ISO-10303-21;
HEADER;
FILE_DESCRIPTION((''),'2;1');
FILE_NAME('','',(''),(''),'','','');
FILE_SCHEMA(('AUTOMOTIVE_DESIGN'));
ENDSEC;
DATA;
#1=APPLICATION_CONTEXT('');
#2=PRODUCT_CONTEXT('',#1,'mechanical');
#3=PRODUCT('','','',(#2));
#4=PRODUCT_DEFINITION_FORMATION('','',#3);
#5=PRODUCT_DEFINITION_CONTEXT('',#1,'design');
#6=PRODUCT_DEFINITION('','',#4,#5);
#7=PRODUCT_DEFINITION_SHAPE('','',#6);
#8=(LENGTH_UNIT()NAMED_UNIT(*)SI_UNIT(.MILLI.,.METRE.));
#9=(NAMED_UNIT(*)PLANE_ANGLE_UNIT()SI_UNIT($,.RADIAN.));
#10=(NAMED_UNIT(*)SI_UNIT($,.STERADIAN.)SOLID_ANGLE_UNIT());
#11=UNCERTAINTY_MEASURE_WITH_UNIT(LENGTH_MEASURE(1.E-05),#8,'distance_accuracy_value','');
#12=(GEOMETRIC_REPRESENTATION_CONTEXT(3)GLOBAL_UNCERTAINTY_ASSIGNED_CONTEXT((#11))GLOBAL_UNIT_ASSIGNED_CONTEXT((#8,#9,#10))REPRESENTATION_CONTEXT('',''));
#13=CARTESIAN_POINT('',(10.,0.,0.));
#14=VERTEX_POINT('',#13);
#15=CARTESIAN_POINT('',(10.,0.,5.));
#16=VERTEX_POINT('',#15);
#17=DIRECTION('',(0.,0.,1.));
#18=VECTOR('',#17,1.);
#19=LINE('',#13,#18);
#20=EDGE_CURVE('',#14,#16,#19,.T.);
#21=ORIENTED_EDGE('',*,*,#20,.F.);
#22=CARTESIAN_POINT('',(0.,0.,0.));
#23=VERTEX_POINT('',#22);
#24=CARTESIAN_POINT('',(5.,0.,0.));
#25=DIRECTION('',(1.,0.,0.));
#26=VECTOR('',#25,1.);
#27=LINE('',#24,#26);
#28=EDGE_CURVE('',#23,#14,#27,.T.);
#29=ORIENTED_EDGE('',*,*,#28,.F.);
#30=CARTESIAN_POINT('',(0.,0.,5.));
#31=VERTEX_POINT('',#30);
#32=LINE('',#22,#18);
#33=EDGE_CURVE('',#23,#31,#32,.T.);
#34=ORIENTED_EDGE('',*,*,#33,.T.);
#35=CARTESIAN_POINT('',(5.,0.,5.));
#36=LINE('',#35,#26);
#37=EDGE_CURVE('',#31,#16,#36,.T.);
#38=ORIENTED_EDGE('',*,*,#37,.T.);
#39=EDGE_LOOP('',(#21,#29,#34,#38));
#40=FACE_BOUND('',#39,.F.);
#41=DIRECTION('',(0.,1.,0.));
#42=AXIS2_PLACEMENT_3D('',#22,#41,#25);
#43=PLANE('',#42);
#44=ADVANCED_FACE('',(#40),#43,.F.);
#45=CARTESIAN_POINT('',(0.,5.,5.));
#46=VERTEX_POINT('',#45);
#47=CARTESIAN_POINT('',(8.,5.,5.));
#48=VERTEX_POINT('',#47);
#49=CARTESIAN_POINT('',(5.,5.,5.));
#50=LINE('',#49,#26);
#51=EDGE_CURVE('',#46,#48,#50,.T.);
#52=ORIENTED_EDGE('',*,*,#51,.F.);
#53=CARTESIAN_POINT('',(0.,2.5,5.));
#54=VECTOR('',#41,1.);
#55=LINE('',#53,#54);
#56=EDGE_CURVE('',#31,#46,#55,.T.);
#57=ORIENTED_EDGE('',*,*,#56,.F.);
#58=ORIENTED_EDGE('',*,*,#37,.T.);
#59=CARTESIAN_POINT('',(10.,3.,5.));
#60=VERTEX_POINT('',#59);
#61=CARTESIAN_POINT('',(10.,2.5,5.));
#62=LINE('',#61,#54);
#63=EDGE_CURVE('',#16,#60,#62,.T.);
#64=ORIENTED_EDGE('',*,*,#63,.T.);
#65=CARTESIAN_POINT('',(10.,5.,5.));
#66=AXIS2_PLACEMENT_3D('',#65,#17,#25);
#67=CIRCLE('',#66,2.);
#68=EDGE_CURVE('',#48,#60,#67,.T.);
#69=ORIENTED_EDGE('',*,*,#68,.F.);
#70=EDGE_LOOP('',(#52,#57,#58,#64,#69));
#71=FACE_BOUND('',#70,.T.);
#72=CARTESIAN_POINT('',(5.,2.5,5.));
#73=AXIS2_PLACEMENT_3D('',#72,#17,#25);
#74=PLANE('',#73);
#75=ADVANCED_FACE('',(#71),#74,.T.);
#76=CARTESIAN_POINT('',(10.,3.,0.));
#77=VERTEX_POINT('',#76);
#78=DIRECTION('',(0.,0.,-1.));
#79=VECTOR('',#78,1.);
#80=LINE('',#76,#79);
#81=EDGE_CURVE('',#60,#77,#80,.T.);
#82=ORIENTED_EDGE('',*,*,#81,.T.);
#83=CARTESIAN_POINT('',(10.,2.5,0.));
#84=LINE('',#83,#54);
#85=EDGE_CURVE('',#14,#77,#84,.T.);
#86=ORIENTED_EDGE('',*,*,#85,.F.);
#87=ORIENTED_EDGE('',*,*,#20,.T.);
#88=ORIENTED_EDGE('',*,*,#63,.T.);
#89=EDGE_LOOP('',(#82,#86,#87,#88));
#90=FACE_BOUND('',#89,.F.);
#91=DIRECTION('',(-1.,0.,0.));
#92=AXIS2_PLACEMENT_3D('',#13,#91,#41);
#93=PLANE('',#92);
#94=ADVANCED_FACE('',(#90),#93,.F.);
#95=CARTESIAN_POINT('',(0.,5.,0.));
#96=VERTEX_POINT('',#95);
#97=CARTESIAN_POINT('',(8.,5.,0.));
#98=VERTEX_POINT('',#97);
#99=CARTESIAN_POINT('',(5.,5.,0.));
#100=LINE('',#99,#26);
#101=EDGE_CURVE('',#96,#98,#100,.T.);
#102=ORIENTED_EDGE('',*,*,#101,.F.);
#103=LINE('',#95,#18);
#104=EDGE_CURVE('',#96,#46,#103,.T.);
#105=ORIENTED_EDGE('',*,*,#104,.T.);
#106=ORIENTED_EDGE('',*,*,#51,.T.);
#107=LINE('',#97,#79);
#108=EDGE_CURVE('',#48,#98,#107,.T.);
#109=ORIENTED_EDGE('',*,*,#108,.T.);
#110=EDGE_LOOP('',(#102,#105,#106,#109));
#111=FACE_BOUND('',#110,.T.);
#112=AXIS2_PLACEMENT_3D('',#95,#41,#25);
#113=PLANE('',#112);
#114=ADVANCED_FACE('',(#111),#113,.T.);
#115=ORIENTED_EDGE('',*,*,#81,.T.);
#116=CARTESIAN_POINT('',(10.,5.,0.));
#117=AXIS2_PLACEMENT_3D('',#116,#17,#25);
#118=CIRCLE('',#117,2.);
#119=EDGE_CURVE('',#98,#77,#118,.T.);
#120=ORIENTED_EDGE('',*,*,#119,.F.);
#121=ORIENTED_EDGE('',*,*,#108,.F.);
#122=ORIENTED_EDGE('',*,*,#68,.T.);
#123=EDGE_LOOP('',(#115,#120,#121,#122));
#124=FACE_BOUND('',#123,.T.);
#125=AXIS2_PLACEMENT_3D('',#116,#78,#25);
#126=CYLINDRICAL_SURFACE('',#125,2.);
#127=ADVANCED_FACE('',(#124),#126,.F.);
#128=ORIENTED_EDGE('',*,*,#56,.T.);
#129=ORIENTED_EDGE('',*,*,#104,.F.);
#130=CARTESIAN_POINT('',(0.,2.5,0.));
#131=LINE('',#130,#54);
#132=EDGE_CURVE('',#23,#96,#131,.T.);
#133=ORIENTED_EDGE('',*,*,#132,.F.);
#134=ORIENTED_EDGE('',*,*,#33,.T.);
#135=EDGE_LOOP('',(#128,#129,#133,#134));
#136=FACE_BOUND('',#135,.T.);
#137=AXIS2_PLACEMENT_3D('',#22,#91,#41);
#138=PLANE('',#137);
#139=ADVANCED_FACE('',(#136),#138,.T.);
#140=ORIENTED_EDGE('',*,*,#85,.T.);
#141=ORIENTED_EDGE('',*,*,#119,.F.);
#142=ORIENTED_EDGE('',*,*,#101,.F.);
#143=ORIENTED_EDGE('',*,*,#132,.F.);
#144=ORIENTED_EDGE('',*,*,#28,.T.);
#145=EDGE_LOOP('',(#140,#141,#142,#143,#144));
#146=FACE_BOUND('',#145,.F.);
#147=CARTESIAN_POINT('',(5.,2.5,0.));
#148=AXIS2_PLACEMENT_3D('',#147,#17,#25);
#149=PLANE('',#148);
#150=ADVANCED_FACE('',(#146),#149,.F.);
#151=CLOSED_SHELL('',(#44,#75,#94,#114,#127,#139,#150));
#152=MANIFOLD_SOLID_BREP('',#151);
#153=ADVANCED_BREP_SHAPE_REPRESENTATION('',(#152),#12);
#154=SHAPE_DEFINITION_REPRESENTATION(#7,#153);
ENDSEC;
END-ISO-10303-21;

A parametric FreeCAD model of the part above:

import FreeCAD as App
import Part
import Sketcher

doc = App.newDocument("Part")
body = doc.addObject("PartDesign::Body", "Body")

# Sketch on XY plane
sketch1 = body.newObject("Sketcher::SketchObject", "Sketch")
sketch1.AttachmentSupport = (doc.getObject("XY_Plane"), [""])
sketch1.MapMode = "FlatFace"
sketch1.addGeometry(Part.Circle(App.Vector(10, 5, 0), App.Vector(0, 0, 1), 2), False)
sketch1.addConstraint(Sketcher.Constraint("Diameter", 0, 4.0))
sketch1.addConstraint(Sketcher.Constraint("DistanceX", -1, 1, 0, 3, 10.0))
sketch1.addConstraint(Sketcher.Constraint("DistanceY", -1, 1, 0, 3, 5.0))
pad1 = body.newObject("PartDesign::Pad", "Pad")
pad1.Profile = sketch1
pad1.Length = 5
body2 = doc.addObject("PartDesign::Body", "Body001")

# Sketch on XY plane
sketch2 = body2.newObject("Sketcher::SketchObject", "Sketch001")
sketch2.AttachmentSupport = (doc.getObject("XY_Plane001"), [""])
sketch2.MapMode = "FlatFace"
sketch2.addGeometry(Part.LineSegment(App.Vector(0, 5, 0), App.Vector(0, 0, 0)), False)
sketch2.addGeometry(Part.LineSegment(App.Vector(0, 0, 0), App.Vector(10, 0, 0)), False)
sketch2.addGeometry(Part.LineSegment(App.Vector(10, 0, 0), App.Vector(10, 5, 0)), False)
sketch2.addGeometry(Part.LineSegment(App.Vector(10, 5, 0), App.Vector(0, 5, 0)), False)
sketch2.addConstraint(Sketcher.Constraint("Coincident", 0, 2, 1, 1))
sketch2.addConstraint(Sketcher.Constraint("Coincident", 1, 2, 2, 1))
sketch2.addConstraint(Sketcher.Constraint("Coincident", 2, 2, 3, 1))
sketch2.addConstraint(Sketcher.Constraint("Coincident", 3, 2, 0, 1))
sketch2.addConstraint(Sketcher.Constraint("Vertical", 0))
sketch2.addConstraint(Sketcher.Constraint("Horizontal", 1))
sketch2.addConstraint(Sketcher.Constraint("Vertical", 2))
sketch2.addConstraint(Sketcher.Constraint("Horizontal", 3))
sketch2.addConstraint(Sketcher.Constraint("Coincident", 0, 2, -1, 1))
sketch2.addConstraint(Sketcher.Constraint("DistanceX", 1, 1, 1, 2, 10.0))
sketch2.addConstraint(Sketcher.Constraint("DistanceY", 0, 2, 0, 1, 5.0))
pad2 = body2.newObject("PartDesign::Pad", "Pad001")
pad2.Profile = sketch2
pad2.Length = 5
doc.recompute()

boolean = body2.newObject("PartDesign::Boolean", "Boolean")
boolean.Type = "Cut"
boolean.addObjects([body])

doc.recompute()
